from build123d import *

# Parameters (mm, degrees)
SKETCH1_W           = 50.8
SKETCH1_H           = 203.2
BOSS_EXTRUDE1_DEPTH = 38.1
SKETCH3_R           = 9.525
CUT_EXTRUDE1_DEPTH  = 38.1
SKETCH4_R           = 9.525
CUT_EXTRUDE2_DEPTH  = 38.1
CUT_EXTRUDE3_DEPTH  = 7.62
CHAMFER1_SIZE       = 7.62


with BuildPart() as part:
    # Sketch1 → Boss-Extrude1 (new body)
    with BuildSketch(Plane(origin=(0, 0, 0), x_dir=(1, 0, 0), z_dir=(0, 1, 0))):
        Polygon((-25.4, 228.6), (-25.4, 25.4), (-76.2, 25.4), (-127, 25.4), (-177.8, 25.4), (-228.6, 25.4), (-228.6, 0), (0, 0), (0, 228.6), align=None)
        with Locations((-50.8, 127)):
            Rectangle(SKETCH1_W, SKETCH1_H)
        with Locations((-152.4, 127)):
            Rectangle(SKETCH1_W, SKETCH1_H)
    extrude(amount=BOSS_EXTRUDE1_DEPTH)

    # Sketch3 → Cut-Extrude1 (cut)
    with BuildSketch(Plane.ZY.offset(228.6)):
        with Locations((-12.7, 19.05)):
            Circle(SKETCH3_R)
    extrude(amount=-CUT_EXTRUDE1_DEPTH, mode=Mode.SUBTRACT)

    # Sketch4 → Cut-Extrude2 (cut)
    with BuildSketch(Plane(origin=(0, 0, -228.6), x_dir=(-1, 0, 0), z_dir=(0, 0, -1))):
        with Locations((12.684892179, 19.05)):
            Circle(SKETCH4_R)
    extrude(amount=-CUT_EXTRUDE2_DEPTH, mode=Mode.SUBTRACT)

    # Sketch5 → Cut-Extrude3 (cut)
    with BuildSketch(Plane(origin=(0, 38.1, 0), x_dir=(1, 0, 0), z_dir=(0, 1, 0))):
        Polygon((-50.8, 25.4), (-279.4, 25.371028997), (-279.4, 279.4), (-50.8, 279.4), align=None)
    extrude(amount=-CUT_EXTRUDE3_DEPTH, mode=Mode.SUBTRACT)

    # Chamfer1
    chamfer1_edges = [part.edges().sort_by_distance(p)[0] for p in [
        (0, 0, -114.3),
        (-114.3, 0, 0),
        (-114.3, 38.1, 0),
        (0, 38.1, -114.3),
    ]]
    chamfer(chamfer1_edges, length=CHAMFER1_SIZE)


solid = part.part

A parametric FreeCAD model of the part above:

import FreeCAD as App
import Part
import Sketcher

V = App.Vector
Q = App.Units.Quantity


def edges_at(feature, points):
    """Names of the edges that pass closest to the given points."""
    edges = feature.Shape.Edges
    near = lambda p: min(range(len(edges)), key=lambda i: edges[i].distToShape(Part.Vertex(*p))[0])
    return sorted({f"Edge{near(p) + 1}" for p in points})


def add_polygon(sketch, points):
    """Adds a closed chain of lines whose ends are joined by coincident constraints."""
    first, n = sketch.GeometryCount, len(points)
    for a, b in zip(points, points[1:] + points[:1]):
        sketch.addGeometry(Part.LineSegment(App.Vector(*a, 0), App.Vector(*b, 0)), False)
    for i in range(n):
        sketch.addConstraint(Sketcher.Constraint("Coincident", first + i, 2, first + (i + 1) % n, 1))

doc = App.newDocument("Part")
params = doc.addObject("Spreadsheet::Sheet", "Params")
for row, (alias, value) in enumerate([
    ("sketch1_width", "2 in"),
    ("sketch1_width2", "9 in"),
    ("sketch1_height", "8 in"),
    ("pad1_length", "1.5 in"),
    ("sketch2_diameter", "0.75 in"),
    ("pocket1_length", "1.5 in"),
    ("sketch3_diameter", "0.75 in"),
    ("pocket2_length", "1.5 in"),
    ("sketch4_width", "9 in"),
    ("sketch4_height", "10 in"),
    ("pocket3_length", "0.3 in"),
    ("chamfer_size", "0.3 in"),
], start=1):
    params.set(f"A{row}", alias)
    params.set(f"B{row}", "=" + value)
    params.setAlias(f"B{row}", alias)

body = doc.addObject("PartDesign::Body", "Body")

sketch1 = doc.addObject("Sketcher::SketchObject", "Sketch")
body.addObject(sketch1)
sketch1.AttachmentSupport = (doc.XZ_Plane, [""])
sketch1.MapMode = "FlatFace"
add_polygon(sketch1, [(-76.2, -25.4), (-127, -25.4), (-127, -228.6), (-177.8, -228.6), (-177.8, -25.4), (-228.6, -25.4), (-228.6, 0), (0, 0), (0, -228.6), (-76.2, -228.6)])
sketch1.addConstraint([
    Sketcher.Constraint("Horizontal", 0),
    Sketcher.Constraint("Vertical", 1),
    Sketcher.Constraint("Horizontal", 2),
    Sketcher.Constraint("Vertical", 3),
    Sketcher.Constraint("Horizontal", 4),
    Sketcher.Constraint("Vertical", 5),
    Sketcher.Constraint("Horizontal", 6),
    Sketcher.Constraint("Vertical", 7),
    Sketcher.Constraint("Horizontal", 8),
    Sketcher.Constraint("Vertical", 9),
    Sketcher.Constraint("Coincident", 6, 2, -1, 1),
    Sketcher.Constraint("Horizontal", 0, 2, 3, 2),
    Sketcher.Constraint("Horizontal", 2, 2, 7, 2),
    Sketcher.Constraint("Equal", 0, 2),
    Sketcher.Constraint("Equal", 2, 4),
    Sketcher.Constraint("Equal", 6, 7),
    Sketcher.Constraint("DistanceX", 0, 2, 0, 1, Q("2 in")),
    Sketcher.Constraint("DistanceX", 6, 1, 6, 2, Q("9 in")),
    Sketcher.Constraint("DistanceY", 1, 2, 1, 1, Q("8 in")),
])
sketch1.setExpression("Constraints[26]", "Params.sketch1_width")
sketch1.setExpression("Constraints[27]", "Params.sketch1_width2")
sketch1.setExpression("Constraints[28]", "Params.sketch1_height")
pad1 = doc.addObject("PartDesign::Pad", "Pad")
body.addObject(pad1)
pad1.Profile = sketch1
pad1.setExpression("Length", "Params.pad1_length")
pad1.Reversed = True

sketch2 = doc.addObject("Sketcher::SketchObject", "Sketch001")
body.addObject(sketch2)
sketch2.AttachmentSupport = (doc.YZ_Plane, [""])
sketch2.MapMode = "FlatFace"
sketch2.AttachmentOffset = App.Placement(V(0, 0, -9 * 25.4), App.Rotation())
sketch2.addGeometry(Part.Circle(V(19.05, -12.7, 0), V(0, 0, 1), 9.525), False)
sketch2.addConstraint([
    Sketcher.Constraint("Diameter", 0, Q("0.75 in")),
    Sketcher.Constraint("DistanceY", 0, 3, -1, 1, Q("0.5 in")),
    Sketcher.Constraint("DistanceX", -1, 1, 0, 3, Q("0.75 in")),
])
sketch2.setExpression("Constraints[0]", "Params.sketch2_diameter")
pocket1 = doc.addObject("PartDesign::Pocket", "Pocket")
body.addObject(pocket1)
pocket1.Profile = sketch2
pocket1.setExpression("Length", "Params.pocket1_length")
pocket1.Reversed = True

sketch3 = doc.addObject("Sketcher::SketchObject", "Sketch002")
body.addObject(sketch3)
sketch3.AttachmentSupport = (doc.XY_Plane, [""])
sketch3.MapMode = "FlatFace"
sketch3.AttachmentOffset = App.Placement(V(0, 0, -9 * 25.4), App.Rotation())
sketch3.addGeometry(Part.Circle(V(-12.684892, 19.05, 0), V(0, 0, 1), 9.525), False)
sketch3.addConstraint([
    Sketcher.Constraint("Diameter", 0, Q("0.75 in")),
    Sketcher.Constraint("DistanceY", -1, 1, 0, 3, Q("0.75 in")),
    Sketcher.Constraint("DistanceX", 0, 3, -1, 1, Q("12.684892 mm")),
])
sketch3.setExpression("Constraints[0]", "Params.sketch3_diameter")
pocket2 = doc.addObject("PartDesign::Pocket", "Pocket001")
body.addObject(pocket2)
pocket2.Profile = sketch3
pocket2.setExpression("Length", "Params.pocket2_length")
pocket2.Reversed = True

sketch4 = doc.addObject("Sketcher::SketchObject", "Sketch003")
body.addObject(sketch4)
sketch4.AttachmentSupport = (doc.XZ_Plane, [""])
sketch4.MapMode = "FlatFace"
sketch4.AttachmentOffset = App.Placement(V(0, 0, -1.5 * 25.4), App.Rotation())
add_polygon(sketch4, [(-279.4, -25.371029), (-50.8, -25.4), (-50.8, -279.4), (-279.4, -279.4)])
sketch4.addConstraint([
    Sketcher.Constraint("Vertical", 1),
    Sketcher.Constraint("Horizontal", 2),
    Sketcher.Constraint("Vertical", 3),
    Sketcher.Constraint("DistanceX", 2, 2, 2, 1, Q("9 in")),
    Sketcher.Constraint("DistanceY", 1, 2, 1, 1, Q("10 in")),
    Sketcher.Constraint("DistanceX", 0, 2, -1, 1, Q("2 in")),
    Sketcher.Constraint("DistanceY", 0, 2, -1, 1, Q("1 in")),
    Sketcher.Constraint("DistanceY", 3, 1, 3, 2, Q("254.028971 mm")),
])
sketch4.setExpression("Constraints[7]", "Params.sketch4_width")
sketch4.setExpression("Constraints[8]", "Params.sketch4_height")
pocket3 = doc.addObject("PartDesign::Pocket", "Pocket002")
body.addObject(pocket3)
pocket3.Profile = sketch4
pocket3.setExpression("Length", "Params.pocket3_length")
pocket3.Reversed = True
doc.recompute()

chamfer = doc.addObject("PartDesign::Chamfer", "Chamfer")
body.addObject(chamfer)
chamfer.Base = (pocket3, edges_at(pocket3, [
    (0, 0, -114.3),
    (-114.3, 0, 0),
    (-114.3, 38.1, 0),
    (0, 38.1, -114.3),
]))
chamfer.setExpression("Size", "Params.chamfer_size")

doc.recompute()
